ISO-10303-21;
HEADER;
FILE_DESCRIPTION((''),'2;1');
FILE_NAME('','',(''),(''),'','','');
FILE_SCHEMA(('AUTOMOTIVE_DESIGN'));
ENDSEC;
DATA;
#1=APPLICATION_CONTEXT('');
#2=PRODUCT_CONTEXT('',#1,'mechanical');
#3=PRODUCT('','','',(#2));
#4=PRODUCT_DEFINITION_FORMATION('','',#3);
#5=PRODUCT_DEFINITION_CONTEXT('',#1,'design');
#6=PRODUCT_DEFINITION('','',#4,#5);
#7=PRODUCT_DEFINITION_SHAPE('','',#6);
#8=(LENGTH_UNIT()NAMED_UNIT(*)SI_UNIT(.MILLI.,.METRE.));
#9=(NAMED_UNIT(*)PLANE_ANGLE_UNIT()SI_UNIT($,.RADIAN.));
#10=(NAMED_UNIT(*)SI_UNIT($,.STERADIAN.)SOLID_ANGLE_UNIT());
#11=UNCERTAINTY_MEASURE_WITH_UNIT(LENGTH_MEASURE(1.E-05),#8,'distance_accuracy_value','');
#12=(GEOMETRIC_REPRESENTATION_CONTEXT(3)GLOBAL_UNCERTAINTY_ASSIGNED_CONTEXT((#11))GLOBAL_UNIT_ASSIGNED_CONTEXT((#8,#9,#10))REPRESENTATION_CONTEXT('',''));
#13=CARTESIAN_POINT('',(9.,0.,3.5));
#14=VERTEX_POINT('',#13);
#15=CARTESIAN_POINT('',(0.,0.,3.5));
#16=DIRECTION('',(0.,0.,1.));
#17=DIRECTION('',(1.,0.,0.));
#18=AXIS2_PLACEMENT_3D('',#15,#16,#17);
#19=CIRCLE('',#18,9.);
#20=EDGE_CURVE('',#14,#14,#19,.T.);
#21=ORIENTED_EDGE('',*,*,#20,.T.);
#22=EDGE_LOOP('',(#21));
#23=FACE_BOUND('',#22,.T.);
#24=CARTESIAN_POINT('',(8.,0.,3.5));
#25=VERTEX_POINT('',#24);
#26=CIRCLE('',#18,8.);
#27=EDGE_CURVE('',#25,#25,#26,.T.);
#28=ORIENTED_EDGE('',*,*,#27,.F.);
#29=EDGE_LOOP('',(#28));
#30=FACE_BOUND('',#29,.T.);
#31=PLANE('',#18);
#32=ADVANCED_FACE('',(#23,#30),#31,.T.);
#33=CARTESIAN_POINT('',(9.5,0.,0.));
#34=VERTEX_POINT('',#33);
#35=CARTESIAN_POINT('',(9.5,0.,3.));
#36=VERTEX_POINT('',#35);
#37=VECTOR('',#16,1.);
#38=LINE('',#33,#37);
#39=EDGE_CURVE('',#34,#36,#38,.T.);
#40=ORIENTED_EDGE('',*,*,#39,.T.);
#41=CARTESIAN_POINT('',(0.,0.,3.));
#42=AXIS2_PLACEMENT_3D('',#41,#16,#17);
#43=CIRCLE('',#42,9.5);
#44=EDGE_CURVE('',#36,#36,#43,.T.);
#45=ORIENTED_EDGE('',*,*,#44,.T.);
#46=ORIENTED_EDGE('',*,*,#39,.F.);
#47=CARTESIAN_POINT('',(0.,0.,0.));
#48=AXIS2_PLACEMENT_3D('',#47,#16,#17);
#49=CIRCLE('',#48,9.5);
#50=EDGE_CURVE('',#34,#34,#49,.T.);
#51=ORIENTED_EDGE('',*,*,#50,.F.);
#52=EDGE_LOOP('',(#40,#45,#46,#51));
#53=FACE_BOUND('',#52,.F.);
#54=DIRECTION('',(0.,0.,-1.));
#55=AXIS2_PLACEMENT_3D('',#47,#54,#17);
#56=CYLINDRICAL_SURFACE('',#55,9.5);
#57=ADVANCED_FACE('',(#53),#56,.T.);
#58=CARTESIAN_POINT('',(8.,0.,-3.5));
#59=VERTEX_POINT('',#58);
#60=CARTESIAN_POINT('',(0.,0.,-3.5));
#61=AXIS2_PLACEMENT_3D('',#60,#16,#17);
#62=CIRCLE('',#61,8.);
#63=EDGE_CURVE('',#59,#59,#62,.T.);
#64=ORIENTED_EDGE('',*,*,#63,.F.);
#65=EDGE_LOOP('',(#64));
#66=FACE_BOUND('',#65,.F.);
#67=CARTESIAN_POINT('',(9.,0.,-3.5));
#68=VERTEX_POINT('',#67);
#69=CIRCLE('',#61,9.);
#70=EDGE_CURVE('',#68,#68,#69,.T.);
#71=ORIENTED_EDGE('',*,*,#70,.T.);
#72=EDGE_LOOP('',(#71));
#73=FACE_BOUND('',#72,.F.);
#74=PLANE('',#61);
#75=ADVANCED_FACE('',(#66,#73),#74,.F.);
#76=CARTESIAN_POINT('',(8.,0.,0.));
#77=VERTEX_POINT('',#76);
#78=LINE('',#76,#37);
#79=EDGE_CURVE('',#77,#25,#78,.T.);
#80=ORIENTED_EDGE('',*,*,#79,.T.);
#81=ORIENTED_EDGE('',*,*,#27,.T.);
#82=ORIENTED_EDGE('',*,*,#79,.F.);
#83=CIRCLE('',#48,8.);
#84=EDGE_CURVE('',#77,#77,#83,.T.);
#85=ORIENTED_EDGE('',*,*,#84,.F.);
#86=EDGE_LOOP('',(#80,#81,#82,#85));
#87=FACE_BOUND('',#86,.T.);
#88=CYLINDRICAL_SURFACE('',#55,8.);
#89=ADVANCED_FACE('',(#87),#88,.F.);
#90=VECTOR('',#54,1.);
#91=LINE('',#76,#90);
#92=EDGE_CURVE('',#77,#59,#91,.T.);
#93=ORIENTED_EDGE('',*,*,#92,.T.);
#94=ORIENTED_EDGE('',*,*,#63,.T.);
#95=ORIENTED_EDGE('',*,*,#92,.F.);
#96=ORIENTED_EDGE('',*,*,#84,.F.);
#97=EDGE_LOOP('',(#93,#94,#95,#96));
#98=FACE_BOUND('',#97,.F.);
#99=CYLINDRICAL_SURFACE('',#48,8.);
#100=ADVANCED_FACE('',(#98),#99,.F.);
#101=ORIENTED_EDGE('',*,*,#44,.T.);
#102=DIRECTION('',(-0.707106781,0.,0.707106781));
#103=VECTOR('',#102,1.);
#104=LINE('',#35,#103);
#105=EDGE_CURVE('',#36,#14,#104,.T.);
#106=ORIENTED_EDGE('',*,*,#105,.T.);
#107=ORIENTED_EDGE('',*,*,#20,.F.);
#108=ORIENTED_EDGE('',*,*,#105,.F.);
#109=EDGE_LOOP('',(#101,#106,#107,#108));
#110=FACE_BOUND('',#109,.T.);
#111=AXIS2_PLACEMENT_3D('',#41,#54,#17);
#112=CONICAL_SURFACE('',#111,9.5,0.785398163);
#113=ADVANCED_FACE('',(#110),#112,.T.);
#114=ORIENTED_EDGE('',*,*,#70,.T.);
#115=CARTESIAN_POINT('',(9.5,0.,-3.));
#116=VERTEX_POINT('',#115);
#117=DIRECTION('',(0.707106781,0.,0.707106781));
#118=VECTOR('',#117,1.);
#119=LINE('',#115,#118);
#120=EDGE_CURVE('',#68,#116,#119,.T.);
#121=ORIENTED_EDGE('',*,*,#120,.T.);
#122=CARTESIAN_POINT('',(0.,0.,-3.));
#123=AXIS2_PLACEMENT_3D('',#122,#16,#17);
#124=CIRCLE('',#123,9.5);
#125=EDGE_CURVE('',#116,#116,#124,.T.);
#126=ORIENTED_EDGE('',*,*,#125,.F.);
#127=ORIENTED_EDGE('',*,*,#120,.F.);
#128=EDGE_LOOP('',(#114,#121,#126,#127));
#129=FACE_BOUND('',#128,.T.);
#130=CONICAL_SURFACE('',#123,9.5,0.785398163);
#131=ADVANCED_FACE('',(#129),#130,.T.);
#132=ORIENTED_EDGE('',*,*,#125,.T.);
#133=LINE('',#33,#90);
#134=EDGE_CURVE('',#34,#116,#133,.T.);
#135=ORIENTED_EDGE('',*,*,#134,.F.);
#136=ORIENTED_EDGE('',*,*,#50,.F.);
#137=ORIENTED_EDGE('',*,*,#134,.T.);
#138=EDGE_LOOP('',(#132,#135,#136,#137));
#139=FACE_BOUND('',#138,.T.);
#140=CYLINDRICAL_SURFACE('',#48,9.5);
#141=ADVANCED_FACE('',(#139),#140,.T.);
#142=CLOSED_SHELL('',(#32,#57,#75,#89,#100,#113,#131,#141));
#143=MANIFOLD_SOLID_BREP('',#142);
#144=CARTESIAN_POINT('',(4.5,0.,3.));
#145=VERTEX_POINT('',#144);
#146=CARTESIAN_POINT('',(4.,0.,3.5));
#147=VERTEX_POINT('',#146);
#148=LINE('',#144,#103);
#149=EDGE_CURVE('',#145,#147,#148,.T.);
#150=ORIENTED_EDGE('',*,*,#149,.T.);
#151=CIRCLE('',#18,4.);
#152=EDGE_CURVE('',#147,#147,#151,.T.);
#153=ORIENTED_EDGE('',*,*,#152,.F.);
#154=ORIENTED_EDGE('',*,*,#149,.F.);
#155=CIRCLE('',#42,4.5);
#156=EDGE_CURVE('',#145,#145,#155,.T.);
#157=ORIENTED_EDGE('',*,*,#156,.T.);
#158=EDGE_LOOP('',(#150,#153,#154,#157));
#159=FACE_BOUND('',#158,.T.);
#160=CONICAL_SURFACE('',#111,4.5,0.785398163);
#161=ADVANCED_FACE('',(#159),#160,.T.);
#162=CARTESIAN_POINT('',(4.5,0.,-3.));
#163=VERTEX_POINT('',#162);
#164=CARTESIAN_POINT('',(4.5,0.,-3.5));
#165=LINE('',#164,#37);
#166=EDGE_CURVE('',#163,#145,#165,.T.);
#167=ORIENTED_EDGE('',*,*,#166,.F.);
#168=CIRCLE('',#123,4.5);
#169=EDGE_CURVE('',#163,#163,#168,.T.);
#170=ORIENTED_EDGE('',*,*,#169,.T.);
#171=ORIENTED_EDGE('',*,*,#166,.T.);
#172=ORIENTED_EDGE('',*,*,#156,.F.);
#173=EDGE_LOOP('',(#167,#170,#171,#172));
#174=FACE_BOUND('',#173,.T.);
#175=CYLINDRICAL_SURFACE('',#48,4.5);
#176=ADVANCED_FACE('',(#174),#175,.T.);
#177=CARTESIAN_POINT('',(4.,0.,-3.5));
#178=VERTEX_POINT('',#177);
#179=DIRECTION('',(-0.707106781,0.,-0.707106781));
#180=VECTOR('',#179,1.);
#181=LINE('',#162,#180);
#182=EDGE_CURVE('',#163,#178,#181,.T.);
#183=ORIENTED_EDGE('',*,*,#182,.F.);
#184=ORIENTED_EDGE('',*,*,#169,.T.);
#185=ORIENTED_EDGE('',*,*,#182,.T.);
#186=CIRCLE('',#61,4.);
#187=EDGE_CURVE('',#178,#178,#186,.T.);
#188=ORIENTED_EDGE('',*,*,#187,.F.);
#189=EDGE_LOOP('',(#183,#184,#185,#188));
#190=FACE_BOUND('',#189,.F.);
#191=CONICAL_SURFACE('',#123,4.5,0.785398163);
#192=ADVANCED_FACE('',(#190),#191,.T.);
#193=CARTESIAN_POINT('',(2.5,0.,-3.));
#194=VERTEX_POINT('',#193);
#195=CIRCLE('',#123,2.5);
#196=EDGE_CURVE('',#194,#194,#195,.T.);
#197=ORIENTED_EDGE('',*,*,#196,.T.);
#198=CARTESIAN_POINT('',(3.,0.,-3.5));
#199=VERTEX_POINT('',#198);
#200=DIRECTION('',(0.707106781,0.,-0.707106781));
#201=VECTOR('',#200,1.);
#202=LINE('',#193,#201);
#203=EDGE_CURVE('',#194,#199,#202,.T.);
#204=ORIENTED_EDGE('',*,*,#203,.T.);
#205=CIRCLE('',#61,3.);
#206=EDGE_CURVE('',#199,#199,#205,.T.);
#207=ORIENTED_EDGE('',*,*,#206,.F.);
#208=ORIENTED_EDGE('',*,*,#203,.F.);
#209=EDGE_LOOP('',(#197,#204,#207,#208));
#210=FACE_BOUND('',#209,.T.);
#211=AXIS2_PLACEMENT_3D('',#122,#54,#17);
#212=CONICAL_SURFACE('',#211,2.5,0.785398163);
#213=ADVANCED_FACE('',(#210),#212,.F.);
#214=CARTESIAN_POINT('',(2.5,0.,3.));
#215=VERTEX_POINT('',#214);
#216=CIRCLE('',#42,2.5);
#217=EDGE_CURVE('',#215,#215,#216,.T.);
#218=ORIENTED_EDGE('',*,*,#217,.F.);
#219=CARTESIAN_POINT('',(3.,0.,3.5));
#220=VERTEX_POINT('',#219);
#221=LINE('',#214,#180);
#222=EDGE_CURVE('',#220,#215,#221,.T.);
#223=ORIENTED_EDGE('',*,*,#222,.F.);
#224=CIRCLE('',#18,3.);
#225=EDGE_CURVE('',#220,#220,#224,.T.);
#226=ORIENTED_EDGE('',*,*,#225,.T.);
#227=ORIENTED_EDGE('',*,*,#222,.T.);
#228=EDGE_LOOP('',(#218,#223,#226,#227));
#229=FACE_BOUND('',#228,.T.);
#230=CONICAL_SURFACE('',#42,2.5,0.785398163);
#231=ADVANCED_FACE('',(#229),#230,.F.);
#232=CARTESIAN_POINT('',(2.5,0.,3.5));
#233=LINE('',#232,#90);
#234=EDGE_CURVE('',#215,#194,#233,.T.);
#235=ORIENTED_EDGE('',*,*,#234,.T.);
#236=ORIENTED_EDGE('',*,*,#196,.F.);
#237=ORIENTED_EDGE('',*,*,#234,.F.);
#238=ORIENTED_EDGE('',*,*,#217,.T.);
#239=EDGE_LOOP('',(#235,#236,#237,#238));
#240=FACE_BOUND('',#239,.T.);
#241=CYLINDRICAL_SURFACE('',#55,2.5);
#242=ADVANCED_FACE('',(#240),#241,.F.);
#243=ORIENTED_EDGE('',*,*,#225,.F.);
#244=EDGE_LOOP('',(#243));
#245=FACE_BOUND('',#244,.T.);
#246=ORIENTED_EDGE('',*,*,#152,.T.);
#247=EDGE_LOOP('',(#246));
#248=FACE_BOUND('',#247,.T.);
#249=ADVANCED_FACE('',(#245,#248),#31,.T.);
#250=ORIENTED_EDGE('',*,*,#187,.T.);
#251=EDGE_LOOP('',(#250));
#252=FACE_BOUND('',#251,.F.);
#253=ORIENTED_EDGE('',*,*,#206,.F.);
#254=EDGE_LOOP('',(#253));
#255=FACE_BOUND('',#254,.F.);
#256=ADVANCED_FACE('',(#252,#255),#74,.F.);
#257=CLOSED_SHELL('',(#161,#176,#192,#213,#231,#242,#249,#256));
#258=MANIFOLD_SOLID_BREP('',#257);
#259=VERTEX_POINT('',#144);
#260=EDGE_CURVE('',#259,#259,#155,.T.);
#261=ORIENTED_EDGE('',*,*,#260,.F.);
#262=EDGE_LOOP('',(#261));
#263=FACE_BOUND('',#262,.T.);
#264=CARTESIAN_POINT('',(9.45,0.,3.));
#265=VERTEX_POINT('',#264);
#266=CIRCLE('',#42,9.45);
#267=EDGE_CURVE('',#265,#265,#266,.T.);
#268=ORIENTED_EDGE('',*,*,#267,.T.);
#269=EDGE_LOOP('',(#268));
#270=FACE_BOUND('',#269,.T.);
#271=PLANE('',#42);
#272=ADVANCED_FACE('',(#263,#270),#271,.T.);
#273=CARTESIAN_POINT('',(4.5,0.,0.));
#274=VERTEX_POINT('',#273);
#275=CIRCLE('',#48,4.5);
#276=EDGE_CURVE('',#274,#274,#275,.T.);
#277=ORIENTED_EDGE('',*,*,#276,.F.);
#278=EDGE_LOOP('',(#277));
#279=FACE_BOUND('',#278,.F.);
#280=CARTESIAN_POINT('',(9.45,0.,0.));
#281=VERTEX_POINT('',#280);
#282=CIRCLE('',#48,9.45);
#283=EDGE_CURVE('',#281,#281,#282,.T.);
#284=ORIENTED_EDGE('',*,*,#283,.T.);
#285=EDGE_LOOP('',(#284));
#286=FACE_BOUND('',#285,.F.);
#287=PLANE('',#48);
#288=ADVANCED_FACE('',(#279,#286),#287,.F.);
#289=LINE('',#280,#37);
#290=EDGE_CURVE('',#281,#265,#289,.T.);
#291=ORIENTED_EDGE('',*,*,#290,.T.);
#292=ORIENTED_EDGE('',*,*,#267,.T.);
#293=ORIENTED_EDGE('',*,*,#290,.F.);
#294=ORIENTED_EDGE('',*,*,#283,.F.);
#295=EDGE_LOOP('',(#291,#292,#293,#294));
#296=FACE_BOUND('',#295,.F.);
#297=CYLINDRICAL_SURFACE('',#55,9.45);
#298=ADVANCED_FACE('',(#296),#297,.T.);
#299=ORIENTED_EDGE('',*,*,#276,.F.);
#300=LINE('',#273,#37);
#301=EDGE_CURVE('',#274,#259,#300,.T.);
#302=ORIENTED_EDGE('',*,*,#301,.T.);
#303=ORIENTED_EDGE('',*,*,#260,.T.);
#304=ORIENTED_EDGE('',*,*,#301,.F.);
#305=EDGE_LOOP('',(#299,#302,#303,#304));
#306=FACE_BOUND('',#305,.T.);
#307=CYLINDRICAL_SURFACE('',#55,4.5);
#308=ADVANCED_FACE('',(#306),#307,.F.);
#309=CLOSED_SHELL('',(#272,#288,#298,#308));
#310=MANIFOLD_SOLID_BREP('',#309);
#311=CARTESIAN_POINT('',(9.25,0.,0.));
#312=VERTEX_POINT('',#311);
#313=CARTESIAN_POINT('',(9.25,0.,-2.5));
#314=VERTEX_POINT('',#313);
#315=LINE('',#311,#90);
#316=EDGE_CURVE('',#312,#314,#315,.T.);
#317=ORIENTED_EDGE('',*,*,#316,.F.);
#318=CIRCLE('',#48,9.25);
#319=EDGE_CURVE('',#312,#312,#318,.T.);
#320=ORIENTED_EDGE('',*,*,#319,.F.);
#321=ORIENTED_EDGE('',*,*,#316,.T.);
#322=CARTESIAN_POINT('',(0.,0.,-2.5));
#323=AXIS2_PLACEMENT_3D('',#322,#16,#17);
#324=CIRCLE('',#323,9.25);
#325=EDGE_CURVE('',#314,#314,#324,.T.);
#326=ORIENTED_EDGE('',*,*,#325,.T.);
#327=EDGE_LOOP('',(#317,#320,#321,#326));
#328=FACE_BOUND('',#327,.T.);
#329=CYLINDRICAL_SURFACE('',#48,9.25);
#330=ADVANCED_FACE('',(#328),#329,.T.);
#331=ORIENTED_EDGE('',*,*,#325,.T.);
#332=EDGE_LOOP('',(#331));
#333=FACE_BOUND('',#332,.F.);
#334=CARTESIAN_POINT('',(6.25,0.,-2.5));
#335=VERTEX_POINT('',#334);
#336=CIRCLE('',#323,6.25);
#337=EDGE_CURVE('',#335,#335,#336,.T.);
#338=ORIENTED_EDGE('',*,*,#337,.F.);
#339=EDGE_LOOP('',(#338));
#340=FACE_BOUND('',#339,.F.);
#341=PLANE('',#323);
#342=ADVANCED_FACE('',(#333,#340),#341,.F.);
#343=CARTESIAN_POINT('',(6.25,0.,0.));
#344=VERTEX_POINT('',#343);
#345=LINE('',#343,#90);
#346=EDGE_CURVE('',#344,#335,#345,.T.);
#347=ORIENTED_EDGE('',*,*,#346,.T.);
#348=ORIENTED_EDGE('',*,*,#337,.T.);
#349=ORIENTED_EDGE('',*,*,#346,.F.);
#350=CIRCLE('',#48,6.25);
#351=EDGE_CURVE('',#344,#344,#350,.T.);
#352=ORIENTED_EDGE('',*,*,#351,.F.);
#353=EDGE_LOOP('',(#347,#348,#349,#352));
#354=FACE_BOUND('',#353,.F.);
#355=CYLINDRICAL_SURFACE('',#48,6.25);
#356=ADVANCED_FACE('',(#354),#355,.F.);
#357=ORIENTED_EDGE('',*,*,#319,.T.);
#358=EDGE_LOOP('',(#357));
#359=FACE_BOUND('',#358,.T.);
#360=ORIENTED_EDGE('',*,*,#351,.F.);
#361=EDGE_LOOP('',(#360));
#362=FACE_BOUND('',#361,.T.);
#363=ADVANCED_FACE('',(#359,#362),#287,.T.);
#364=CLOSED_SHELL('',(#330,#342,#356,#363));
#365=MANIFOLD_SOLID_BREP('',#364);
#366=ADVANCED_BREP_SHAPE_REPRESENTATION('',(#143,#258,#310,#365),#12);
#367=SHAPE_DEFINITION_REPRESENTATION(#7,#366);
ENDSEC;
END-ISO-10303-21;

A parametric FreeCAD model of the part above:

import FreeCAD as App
import Part
import Sketcher
from FreeCAD import Vector


def edges_at(feature, points):
    """Names of the edges that pass closest to the given points."""
    edges = feature.Shape.Edges
    near = lambda p: min(range(len(edges)), key=lambda i: edges[i].distToShape(Part.Vertex(*p))[0])
    return sorted({f"Edge{near(p) + 1}" for p in points})

doc = App.newDocument("Part")
body = doc.addObject("PartDesign::Body", "Body")
body.AllowCompound = True

sketch1 = doc.addObject("Sketcher::SketchObject", "Sketch")
body.addObject(sketch1)
sketch1.AttachmentSupport = (doc.XY_Plane, [""])
sketch1.MapMode = "FlatFace"
sketch1.addGeometry(Part.Circle(Vector(0, 0, 0), Vector(0, 0, 1), 9.5), False)
sketch1.addGeometry(Part.Circle(Vector(0, 0, 0), Vector(0, 0, 1), 8), False)
sketch1.addGeometry(Part.Circle(Vector(0, 0, 0), Vector(0, 0, 1), 4.5), False)
sketch1.addGeometry(Part.Circle(Vector(0, 0, 0), Vector(0, 0, 1), 2.5), False)
sketch1.addConstraint(Sketcher.Constraint("Coincident", 0, 3, -1, 1))
sketch1.addConstraint(Sketcher.Constraint("Coincident", 1, 3, -1, 1))
sketch1.addConstraint(Sketcher.Constraint("Coincident", 2, 3, -1, 1))
sketch1.addConstraint(Sketcher.Constraint("Coincident", 3, 3, -1, 1))
sketch1.addConstraint(Sketcher.Constraint("Diameter", 0, 19.0))
sketch1.addConstraint(Sketcher.Constraint("Diameter", 1, 16.0))
sketch1.addConstraint(Sketcher.Constraint("Diameter", 2, 9.0))
sketch1.addConstraint(Sketcher.Constraint("Diameter", 3, 5.0))
pad1 = doc.addObject("PartDesign::Pad", "Pad")
body.addObject(pad1)
pad1.Profile = sketch1
pad1.Length = 7
pad1.Midplane = True
doc.recompute()

chamfer = doc.addObject("PartDesign::Chamfer", "Chamfer")
body.addObject(chamfer)
chamfer.Base = (pad1, edges_at(pad1, [
    (-9.5, 0, 3.5),
    (-9.5, 0, -3.5),
    (-4.5, 0, 3.5),
    (-2.5, 0, 3.5),
    (-4.5, 0, -3.5),
    (-2.5, 0, -3.5),
]))
chamfer.Size = 0.5
body2 = doc.addObject("PartDesign::Body", "Body001")

sketch2 = doc.addObject("Sketcher::SketchObject", "Sketch001")
body2.addObject(sketch2)
sketch2.AttachmentSupport = (doc.getObject("XY_Plane001"), [""])
sketch2.MapMode = "FlatFace"
sketch2.addGeometry(Part.Circle(Vector(0, 0, 0), Vector(0, 0, 1), 9.25), False)
sketch2.addGeometry(Part.Circle(Vector(0, 0, 0), Vector(0, 0, 1), 6.25), False)
sketch2.addConstraint(Sketcher.Constraint("Coincident", 0, 3, -1, 1))
sketch2.addConstraint(Sketcher.Constraint("Coincident", 1, 3, -1, 1))
sketch2.addConstraint(Sketcher.Constraint("Diameter", 0, 18.5))
sketch2.addConstraint(Sketcher.Constraint("Diameter", 1, 12.5))
pad2 = doc.addObject("PartDesign::Pad", "Pad001")
body2.addObject(pad2)
pad2.Profile = sketch2
pad2.Length = 2.5
pad2.Reversed = True
body3 = doc.addObject("PartDesign::Body", "Body002")

sketch3 = doc.addObject("Sketcher::SketchObject", "Sketch002")
body3.addObject(sketch3)
sketch3.AttachmentSupport = (doc.getObject("XY_Plane002"), [""])
sketch3.MapMode = "FlatFace"
sketch3.addGeometry(Part.Circle(Vector(0, 0, 0), Vector(0, 0, 1), 9.45), False)
sketch3.addGeometry(Part.Circle(Vector(0, 0, 0), Vector(0, 0, 1), 4.5), False)
sketch3.addConstraint(Sketcher.Constraint("Coincident", 0, 3, -1, 1))
sketch3.addConstraint(Sketcher.Constraint("Coincident", 1, 3, -1, 1))
sketch3.addConstraint(Sketcher.Constraint("Diameter", 1, 9.0))
sketch3.addConstraint(Sketcher.Constraint("Diameter", 0, 18.9))
pad3 = doc.addObject("PartDesign::Pad", "Pad002")
body3.addObject(pad3)
pad3.Profile = sketch3
pad3.Length = 3

doc.recompute()
